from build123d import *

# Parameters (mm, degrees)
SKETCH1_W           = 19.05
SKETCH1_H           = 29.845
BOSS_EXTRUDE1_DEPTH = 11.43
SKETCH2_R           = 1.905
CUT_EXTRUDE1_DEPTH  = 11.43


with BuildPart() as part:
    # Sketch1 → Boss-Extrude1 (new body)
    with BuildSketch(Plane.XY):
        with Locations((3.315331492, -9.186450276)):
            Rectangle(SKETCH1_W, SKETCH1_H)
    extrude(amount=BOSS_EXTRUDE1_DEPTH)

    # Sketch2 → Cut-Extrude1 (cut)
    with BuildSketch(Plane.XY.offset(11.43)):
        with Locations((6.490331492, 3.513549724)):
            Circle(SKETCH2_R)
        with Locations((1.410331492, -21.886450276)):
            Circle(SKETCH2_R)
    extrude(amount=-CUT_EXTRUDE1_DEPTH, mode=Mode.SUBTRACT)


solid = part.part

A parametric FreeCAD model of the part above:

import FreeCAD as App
import Part
import Sketcher
from FreeCAD import Vector
Q = App.Units.Quantity

doc = App.newDocument("Part")
body = doc.addObject("PartDesign::Body", "Body")

sketch1 = body.newObject("Sketcher::SketchObject", "Sketch")
sketch1.AttachmentSupport = (doc.getObject("XY_Plane"), [""])
sketch1.MapMode = "FlatFace"
sketch1.addGeometry([
    Part.LineSegment(Vector(-6, 6, 0), Vector(-6, -24, 0)),
    Part.LineSegment(Vector(-6, -24, 0), Vector(13, -24, 0)),
    Part.LineSegment(Vector(13, -24, 0), Vector(13, 6, 0)),
    Part.LineSegment(Vector(13, 6, 0), Vector(-6, 6, 0)),
], False)
sketch1.addConstraint([
    Sketcher.Constraint("Coincident", 0, 2, 1, 1),
    Sketcher.Constraint("Coincident", 1, 2, 2, 1),
    Sketcher.Constraint("Coincident", 2, 2, 3, 1),
    Sketcher.Constraint("Coincident", 3, 2, 0, 1),
    Sketcher.Constraint("Vertical", 0),
    Sketcher.Constraint("Horizontal", 1),
    Sketcher.Constraint("Vertical", 2),
    Sketcher.Constraint("Horizontal", 3),
    Sketcher.Constraint("DistanceX", 1, 1, 1, 2, Q("0.75 in")),
    Sketcher.Constraint("DistanceY", 0, 2, 0, 1, Q("1.175 in")),
    Sketcher.Constraint("DistanceX", 0, 2, -1, 1, 6.209669),
    Sketcher.Constraint("DistanceY", 0, 2, -1, 1, 24.10895),
])
pad1 = body.newObject("PartDesign::Pad", "Pad")
pad1.Profile = sketch1
pad1.Length = Q("0.45 in")

sketch2 = body.newObject("Sketcher::SketchObject", "Sketch001")
sketch2.AttachmentSupport = (doc.getObject("XY_Plane"), [""])
sketch2.MapMode = "FlatFace"
sketch2.AttachmentOffset = App.Placement(Vector(0, 0, 0.45 * 25.4), App.Rotation())
sketch2.addGeometry([
    Part.Circle(Vector(6.5, 3.5, 0), Vector(0, 0, 1), 1.9),
    Part.Circle(Vector(1.4, -21.9, 0), Vector(0, 0, 1), 1.9),
], False)
sketch2.addConstraint([
    Sketcher.Constraint("Equal", 0, 1),
    Sketcher.Constraint("Diameter", 0, Q("0.15 in")),
    Sketcher.Constraint("DistanceY", 1, 3, 0, 3, Q("1 in")),
    Sketcher.Constraint("DistanceX", 1, 3, 0, 3, Q("0.2 in")),
    Sketcher.Constraint("DistanceX", -1, 1, 0, 3, 6.490331),
    Sketcher.Constraint("DistanceY", -1, 1, 0, 3, 3.51355),
])
pocket1 = body.newObject("PartDesign::Pocket", "Pocket")
pocket1.Profile = sketch2
pocket1.Length = Q("0.45 in")

doc.recompute()
